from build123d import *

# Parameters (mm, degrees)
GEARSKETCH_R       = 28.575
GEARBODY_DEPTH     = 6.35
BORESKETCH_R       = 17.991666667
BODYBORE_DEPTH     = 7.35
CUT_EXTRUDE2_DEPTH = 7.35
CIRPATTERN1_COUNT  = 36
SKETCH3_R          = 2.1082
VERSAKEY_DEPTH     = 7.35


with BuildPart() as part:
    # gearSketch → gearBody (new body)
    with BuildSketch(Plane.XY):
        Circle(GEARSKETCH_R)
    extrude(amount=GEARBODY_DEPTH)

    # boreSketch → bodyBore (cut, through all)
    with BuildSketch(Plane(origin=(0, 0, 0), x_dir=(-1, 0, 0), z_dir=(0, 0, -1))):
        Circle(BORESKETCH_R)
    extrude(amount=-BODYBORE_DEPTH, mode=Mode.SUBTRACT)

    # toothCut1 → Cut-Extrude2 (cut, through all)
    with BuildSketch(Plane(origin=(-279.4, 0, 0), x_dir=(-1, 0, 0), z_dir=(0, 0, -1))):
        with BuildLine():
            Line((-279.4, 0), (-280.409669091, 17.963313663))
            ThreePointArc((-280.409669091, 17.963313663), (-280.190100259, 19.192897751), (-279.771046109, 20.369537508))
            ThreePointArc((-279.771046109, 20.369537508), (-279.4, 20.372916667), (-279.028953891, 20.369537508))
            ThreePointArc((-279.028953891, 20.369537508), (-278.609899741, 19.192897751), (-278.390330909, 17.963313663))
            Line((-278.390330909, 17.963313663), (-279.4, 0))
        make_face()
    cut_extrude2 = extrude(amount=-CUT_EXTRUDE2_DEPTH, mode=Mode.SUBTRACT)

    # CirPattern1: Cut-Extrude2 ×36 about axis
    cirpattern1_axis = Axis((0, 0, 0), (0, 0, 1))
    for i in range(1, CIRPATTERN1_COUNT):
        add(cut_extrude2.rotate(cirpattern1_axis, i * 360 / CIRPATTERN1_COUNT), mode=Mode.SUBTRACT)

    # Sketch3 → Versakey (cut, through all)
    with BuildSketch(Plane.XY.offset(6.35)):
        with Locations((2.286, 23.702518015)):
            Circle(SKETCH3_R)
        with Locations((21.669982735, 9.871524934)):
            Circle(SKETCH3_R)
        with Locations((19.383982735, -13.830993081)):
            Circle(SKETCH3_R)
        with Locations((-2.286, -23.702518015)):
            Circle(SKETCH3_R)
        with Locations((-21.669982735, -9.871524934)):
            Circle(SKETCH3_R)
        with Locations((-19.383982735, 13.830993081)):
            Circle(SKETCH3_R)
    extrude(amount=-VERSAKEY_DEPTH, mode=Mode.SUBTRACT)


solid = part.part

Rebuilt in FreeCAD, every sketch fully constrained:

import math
import FreeCAD as App
import Part
import Sketcher
Q = App.Units.Quantity

doc = App.newDocument("Part")
params = doc.addObject("Spreadsheet::Sheet", "Params")
for row, (alias, value) in enumerate([
    ("sketch1_diameter", "2.25 in"),
    ("pad1_length", "0.25 in"),
    ("sketch4_diameter", "0.166 in"),
], start=1):
    params.set(f"A{row}", alias)
    params.set(f"B{row}", "=" + value)
    params.setAlias(f"B{row}", alias)

body = doc.addObject("PartDesign::Body", "Body")

sketch1 = doc.addObject("Sketcher::SketchObject", "Sketch")
body.addObject(sketch1)
sketch1.AttachmentSupport = (doc.XY_Plane, [""])
sketch1.MapMode = "FlatFace"
sketch1.addGeometry(Part.Circle(App.Vector(0, 0, 0), App.Vector(0, 0, 1), 29), False)
sketch1.addConstraint([
    Sketcher.Constraint("Coincident", 0, 3, -1, 1),
    Sketcher.Constraint("Diameter", 0, Q("2.25 in")),
])
sketch1.setExpression("Constraints[1]", "Params.sketch1_diameter")
pad1 = doc.addObject("PartDesign::Pad", "Pad")
body.addObject(pad1)
pad1.Profile = sketch1
pad1.setExpression("Length", "Params.pad1_length")

sketch2 = doc.addObject("Sketcher::SketchObject", "Sketch001")
body.addObject(sketch2)
sketch2.AttachmentSupport = (doc.XY_Plane, [""])
sketch2.MapMode = "FlatFace"
sketch2.addGeometry(Part.Circle(App.Vector(0, 0, 0), App.Vector(0, 0, 1), 18), False)
sketch2.addConstraint([
    Sketcher.Constraint("Coincident", 0, 3, -1, 1),
    Sketcher.Constraint("Diameter", 0, Q("35.983333 mm")),
])
pocket1 = doc.addObject("PartDesign::Pocket", "Pocket")
body.addObject(pocket1)
pocket1.Profile = sketch2
pocket1.Type = "ThroughAll"
pocket1.Reversed = True

sketch3 = doc.addObject("Sketcher::SketchObject", "Sketch002")
body.addObject(sketch3)
sketch3.AttachmentSupport = (doc.XY_Plane, [""])
sketch3.MapMode = "FlatFace"
sketch3.addGeometry([
    Part.LineSegment(App.Vector(1, 18, 0), App.Vector(0, 0, 0)),
    Part.LineSegment(App.Vector(0, 0, 0), App.Vector(-1, 18, 0)),
    Part.ArcOfCircle(Part.Circle(App.Vector(6.5, 17.3, 0), App.Vector(0, 0, 1), 7.6), math.radians(155.66), math.radians(174.61)),
    Part.ArcOfCircle(Part.Circle(App.Vector(0, 0, 0), App.Vector(0, 0, 1), 20.4), math.radians(88.96), math.radians(91.04)),
    Part.ArcOfCircle(Part.Circle(App.Vector(-6.5, 17.3, 0), App.Vector(0, 0, 1), 7.6), math.radians(5.39), math.radians(24.34)),
], False)
sketch3.addConstraint([
    Sketcher.Constraint("Coincident", 0, 2, 1, 1),
    Sketcher.Constraint("Coincident", 1, 2, 2, 2),
    Sketcher.Constraint("Coincident", 2, 1, 3, 2),
    Sketcher.Constraint("Coincident", 3, 1, 4, 2),
    Sketcher.Constraint("Coincident", 4, 1, 0, 1),
    Sketcher.Constraint("Coincident", 3, 3, -1, 1),
    Sketcher.Constraint("Coincident", 0, 2, -1, 1),
    Sketcher.Constraint("Equal", 2, 4),
    Sketcher.Constraint("Symmetric", 2, 3, 4, 3, -2),
    Sketcher.Constraint("Horizontal", 1, 2, 4, 1),
    Sketcher.Constraint("Radius", 2, Q("7.558871 mm")),
    Sketcher.Constraint("Radius", 3, Q("20.372914 mm")),
    Sketcher.Constraint("DistanceY", -1, 1, 2, 3, Q("17.253869 mm")),
    Sketcher.Constraint("DistanceX", 1, 2, -1, 1, Q("1.009669 mm")),
    Sketcher.Constraint("DistanceX", 4, 3, 2, 3, Q("13.031671 mm")),
])
pocket2 = doc.addObject("PartDesign::Pocket", "Pocket001")
body.addObject(pocket2)
pocket2.Profile = sketch3
pocket2.Type = "ThroughAll"
pocket2.Reversed = True
doc.recompute()

polarpattern = doc.addObject("PartDesign::PolarPattern", "PolarPattern")
body.addObject(polarpattern)
polarpattern.Originals = [pocket2]
polarpattern.Axis = (doc.Z_Axis, [""])
polarpattern.Angle = 360
polarpattern.Occurrences = 36
body.Tip = polarpattern

sketch4 = doc.addObject("Sketcher::SketchObject", "Sketch003")
body.addObject(sketch4)
sketch4.AttachmentSupport = (doc.XY_Plane, [""])
sketch4.MapMode = "FlatFace"
sketch4.AttachmentOffset = App.Placement(App.Vector(0, 0, 0.25 * 25.4), App.Rotation())
sketch4.addGeometry([
    Part.Circle(App.Vector(2.3, 23.7, 0), App.Vector(0, 0, 1), 2.1),
    Part.Circle(App.Vector(21.7, 9.9, 0), App.Vector(0, 0, 1), 2.1),
    Part.Circle(App.Vector(19.4, -13.8, 0), App.Vector(0, 0, 1), 2.1),
    Part.Circle(App.Vector(-2.3, -23.7, 0), App.Vector(0, 0, 1), 2.1),
    Part.Circle(App.Vector(-21.7, -9.9, 0), App.Vector(0, 0, 1), 2.1),
    Part.Circle(App.Vector(-19.4, 13.8, 0), App.Vector(0, 0, 1), 2.1),
], False)
sketch4.addConstraint([
    Sketcher.Constraint("Equal", 0, 1),
    Sketcher.Constraint("Equal", 1, 2),
    Sketcher.Constraint("Equal", 2, 3),
    Sketcher.Constraint("Equal", 3, 4),
    Sketcher.Constraint("Equal", 4, 5),
    Sketcher.Constraint("Symmetric", 0, 3, 3, 3, -1, 1),
    Sketcher.Constraint("Symmetric", 1, 3, 4, 3, -1, 1),
    Sketcher.Constraint("Symmetric", 2, 3, 5, 3, -1, 1),
    Sketcher.Constraint("Diameter", 0, Q("0.166 in")),
    Sketcher.Constraint("DistanceX", -1, 1, 0, 3, Q("0.09 in")),
    Sketcher.Constraint("DistanceX", 2, 3, 1, 3, Q("0.09 in")),
    Sketcher.Constraint("DistanceY", -1, 1, 0, 3, Q("23.702518 mm")),
    Sketcher.Constraint("DistanceY", 2, 3, 1, 3, Q("23.702518 mm")),
    Sketcher.Constraint("DistanceY", 2, 3, 0, 3, Q("37.533511 mm")),
    Sketcher.Constraint("DistanceX", -1, 1, 1, 3, Q("21.669983 mm")),
])
sketch4.setExpression("Constraints[8]", "Params.sketch4_diameter")
pocket3 = doc.addObject("PartDesign::Pocket", "Pocket002")
body.addObject(pocket3)
pocket3.Profile = sketch4
pocket3.Type = "ThroughAll"

doc.recompute()
